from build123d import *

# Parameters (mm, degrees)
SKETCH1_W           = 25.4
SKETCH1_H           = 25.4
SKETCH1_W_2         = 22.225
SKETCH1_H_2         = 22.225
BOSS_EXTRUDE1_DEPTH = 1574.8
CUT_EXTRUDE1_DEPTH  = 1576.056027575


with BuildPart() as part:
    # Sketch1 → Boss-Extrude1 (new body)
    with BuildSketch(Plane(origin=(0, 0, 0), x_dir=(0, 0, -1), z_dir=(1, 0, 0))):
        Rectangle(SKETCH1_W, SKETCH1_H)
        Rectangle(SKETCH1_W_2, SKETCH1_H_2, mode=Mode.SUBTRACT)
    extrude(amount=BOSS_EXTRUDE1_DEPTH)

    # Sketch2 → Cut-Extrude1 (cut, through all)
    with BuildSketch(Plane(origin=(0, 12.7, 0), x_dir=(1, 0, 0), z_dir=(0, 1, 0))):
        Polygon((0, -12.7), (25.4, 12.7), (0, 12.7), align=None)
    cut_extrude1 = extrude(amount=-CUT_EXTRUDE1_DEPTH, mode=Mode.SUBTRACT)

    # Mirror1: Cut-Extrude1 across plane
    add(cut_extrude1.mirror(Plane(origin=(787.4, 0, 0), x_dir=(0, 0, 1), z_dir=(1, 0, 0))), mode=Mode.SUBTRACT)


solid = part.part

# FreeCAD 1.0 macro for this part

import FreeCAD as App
import Part
import Sketcher
Q = App.Units.Quantity

doc = App.newDocument("Part")
body = doc.addObject("PartDesign::Body", "Body")

sketch1 = body.newObject("Sketcher::SketchObject", "Sketch")
sketch1.AttachmentSupport = (doc.getObject("YZ_Plane"), [""])
sketch1.MapMode = "FlatFace"
sketch1.addGeometry(Part.LineSegment(App.Vector(12.7, 12.7, 0), App.Vector(-12.7, 12.7, 0)), False)
sketch1.addGeometry(Part.LineSegment(App.Vector(-12.7, 12.7, 0), App.Vector(-12.7, -12.7, 0)), False)
sketch1.addGeometry(Part.LineSegment(App.Vector(-12.7, -12.7, 0), App.Vector(12.7, -12.7, 0)), False)
sketch1.addGeometry(Part.LineSegment(App.Vector(12.7, -12.7, 0), App.Vector(12.7, 12.7, 0)), False)
sketch1.addGeometry(Part.LineSegment(App.Vector(-11.1125, -11.1125, 0), App.Vector(-11.1125, 11.1125, 0)), False)
sketch1.addGeometry(Part.LineSegment(App.Vector(-11.1125, 11.1125, 0), App.Vector(11.1125, 11.1125, 0)), False)
sketch1.addGeometry(Part.LineSegment(App.Vector(11.1125, 11.1125, 0), App.Vector(11.1125, -11.1125, 0)), False)
sketch1.addGeometry(Part.LineSegment(App.Vector(11.1125, -11.1125, 0), App.Vector(-11.1125, -11.1125, 0)), False)
sketch1.addConstraint(Sketcher.Constraint("Coincident", 0, 2, 1, 1))
sketch1.addConstraint(Sketcher.Constraint("Coincident", 1, 2, 2, 1))
sketch1.addConstraint(Sketcher.Constraint("Coincident", 2, 2, 3, 1))
sketch1.addConstraint(Sketcher.Constraint("Coincident", 3, 2, 0, 1))
sketch1.addConstraint(Sketcher.Constraint("Coincident", 4, 2, 5, 1))
sketch1.addConstraint(Sketcher.Constraint("Coincident", 5, 2, 6, 1))
sketch1.addConstraint(Sketcher.Constraint("Coincident", 6, 2, 7, 1))
sketch1.addConstraint(Sketcher.Constraint("Coincident", 7, 2, 4, 1))
sketch1.addConstraint(Sketcher.Constraint("Horizontal", 0))
sketch1.addConstraint(Sketcher.Constraint("Vertical", 1))
sketch1.addConstraint(Sketcher.Constraint("Horizontal", 2))
sketch1.addConstraint(Sketcher.Constraint("Vertical", 3))
sketch1.addConstraint(Sketcher.Constraint("Vertical", 4))
sketch1.addConstraint(Sketcher.Constraint("Horizontal", 5))
sketch1.addConstraint(Sketcher.Constraint("Vertical", 6))
sketch1.addConstraint(Sketcher.Constraint("Horizontal", 7))
sketch1.addConstraint(Sketcher.Constraint("Symmetric", 0, 2, 2, 2, -1, 1))
sketch1.addConstraint(Sketcher.Constraint("Symmetric", 4, 2, 6, 2, -1, 1))
sketch1.addConstraint(Sketcher.Constraint("Equal", 2, 1))
sketch1.addConstraint(Sketcher.Constraint("Equal", 7, 4))
sketch1.addConstraint(Sketcher.Constraint("DistanceX", 0, 2, 0, 1, Q("1 in")))
sketch1.addConstraint(Sketcher.Constraint("DistanceX", 5, 1, 5, 2, Q("0.875 in")))
pad1 = body.newObject("PartDesign::Pad", "Pad")
pad1.Profile = sketch1
pad1.Length = Q("62 in")

sketch2 = body.newObject("Sketcher::SketchObject", "Sketch001")
sketch2.AttachmentSupport = (doc.getObject("XZ_Plane"), [""])
sketch2.MapMode = "FlatFace"
sketch2.AttachmentOffset = App.Placement(App.Vector(0, 0, -0.5 * 25.4), App.Rotation())
sketch2.addGeometry(Part.LineSegment(App.Vector(0, 12.7, 0), App.Vector(25.4, -12.7, 0)), False)
sketch2.addGeometry(Part.LineSegment(App.Vector(25.4, -12.7, 0), App.Vector(0, -12.7, 0)), False)
sketch2.addGeometry(Part.LineSegment(App.Vector(0, -12.7, 0), App.Vector(0, 12.7, 0)), False)
sketch2.addConstraint(Sketcher.Constraint("Coincident", 0, 2, 1, 1))
sketch2.addConstraint(Sketcher.Constraint("Coincident", 1, 2, 2, 1))
sketch2.addConstraint(Sketcher.Constraint("Coincident", 2, 2, 0, 1))
sketch2.addConstraint(Sketcher.Constraint("Horizontal", 1))
sketch2.addConstraint(Sketcher.Constraint("Vertical", 2))
sketch2.addConstraint(Sketcher.Constraint("Symmetric", 1, 2, 2, 2, -1, 1))
sketch2.addConstraint(Sketcher.Constraint("Equal", 1, 2))
sketch2.addConstraint(Sketcher.Constraint("DistanceX", 1, 2, 1, 1, Q("1 in")))
pocket1 = body.newObject("PartDesign::Pocket", "Pocket")
pocket1.Profile = sketch2
pocket1.Type = "ThroughAll"
pocket1.Reversed = True
doc.recompute()

datumplane = body.newObject("PartDesign::Plane", "DatumPlane")
datumplane.AttachmentSupport = (doc.getObject("YZ_Plane"), [""])
datumplane.MapMode = "FlatFace"
datumplane.AttachmentOffset = App.Placement(App.Vector(0, 0, 31 * 25.4), App.Rotation())
mirrored = body.newObject("PartDesign::Mirrored", "Mirrored")
mirrored.Originals = [pocket1]
mirrored.MirrorPlane = (datumplane, [""])
body.Tip = mirrored

doc.recompute()
